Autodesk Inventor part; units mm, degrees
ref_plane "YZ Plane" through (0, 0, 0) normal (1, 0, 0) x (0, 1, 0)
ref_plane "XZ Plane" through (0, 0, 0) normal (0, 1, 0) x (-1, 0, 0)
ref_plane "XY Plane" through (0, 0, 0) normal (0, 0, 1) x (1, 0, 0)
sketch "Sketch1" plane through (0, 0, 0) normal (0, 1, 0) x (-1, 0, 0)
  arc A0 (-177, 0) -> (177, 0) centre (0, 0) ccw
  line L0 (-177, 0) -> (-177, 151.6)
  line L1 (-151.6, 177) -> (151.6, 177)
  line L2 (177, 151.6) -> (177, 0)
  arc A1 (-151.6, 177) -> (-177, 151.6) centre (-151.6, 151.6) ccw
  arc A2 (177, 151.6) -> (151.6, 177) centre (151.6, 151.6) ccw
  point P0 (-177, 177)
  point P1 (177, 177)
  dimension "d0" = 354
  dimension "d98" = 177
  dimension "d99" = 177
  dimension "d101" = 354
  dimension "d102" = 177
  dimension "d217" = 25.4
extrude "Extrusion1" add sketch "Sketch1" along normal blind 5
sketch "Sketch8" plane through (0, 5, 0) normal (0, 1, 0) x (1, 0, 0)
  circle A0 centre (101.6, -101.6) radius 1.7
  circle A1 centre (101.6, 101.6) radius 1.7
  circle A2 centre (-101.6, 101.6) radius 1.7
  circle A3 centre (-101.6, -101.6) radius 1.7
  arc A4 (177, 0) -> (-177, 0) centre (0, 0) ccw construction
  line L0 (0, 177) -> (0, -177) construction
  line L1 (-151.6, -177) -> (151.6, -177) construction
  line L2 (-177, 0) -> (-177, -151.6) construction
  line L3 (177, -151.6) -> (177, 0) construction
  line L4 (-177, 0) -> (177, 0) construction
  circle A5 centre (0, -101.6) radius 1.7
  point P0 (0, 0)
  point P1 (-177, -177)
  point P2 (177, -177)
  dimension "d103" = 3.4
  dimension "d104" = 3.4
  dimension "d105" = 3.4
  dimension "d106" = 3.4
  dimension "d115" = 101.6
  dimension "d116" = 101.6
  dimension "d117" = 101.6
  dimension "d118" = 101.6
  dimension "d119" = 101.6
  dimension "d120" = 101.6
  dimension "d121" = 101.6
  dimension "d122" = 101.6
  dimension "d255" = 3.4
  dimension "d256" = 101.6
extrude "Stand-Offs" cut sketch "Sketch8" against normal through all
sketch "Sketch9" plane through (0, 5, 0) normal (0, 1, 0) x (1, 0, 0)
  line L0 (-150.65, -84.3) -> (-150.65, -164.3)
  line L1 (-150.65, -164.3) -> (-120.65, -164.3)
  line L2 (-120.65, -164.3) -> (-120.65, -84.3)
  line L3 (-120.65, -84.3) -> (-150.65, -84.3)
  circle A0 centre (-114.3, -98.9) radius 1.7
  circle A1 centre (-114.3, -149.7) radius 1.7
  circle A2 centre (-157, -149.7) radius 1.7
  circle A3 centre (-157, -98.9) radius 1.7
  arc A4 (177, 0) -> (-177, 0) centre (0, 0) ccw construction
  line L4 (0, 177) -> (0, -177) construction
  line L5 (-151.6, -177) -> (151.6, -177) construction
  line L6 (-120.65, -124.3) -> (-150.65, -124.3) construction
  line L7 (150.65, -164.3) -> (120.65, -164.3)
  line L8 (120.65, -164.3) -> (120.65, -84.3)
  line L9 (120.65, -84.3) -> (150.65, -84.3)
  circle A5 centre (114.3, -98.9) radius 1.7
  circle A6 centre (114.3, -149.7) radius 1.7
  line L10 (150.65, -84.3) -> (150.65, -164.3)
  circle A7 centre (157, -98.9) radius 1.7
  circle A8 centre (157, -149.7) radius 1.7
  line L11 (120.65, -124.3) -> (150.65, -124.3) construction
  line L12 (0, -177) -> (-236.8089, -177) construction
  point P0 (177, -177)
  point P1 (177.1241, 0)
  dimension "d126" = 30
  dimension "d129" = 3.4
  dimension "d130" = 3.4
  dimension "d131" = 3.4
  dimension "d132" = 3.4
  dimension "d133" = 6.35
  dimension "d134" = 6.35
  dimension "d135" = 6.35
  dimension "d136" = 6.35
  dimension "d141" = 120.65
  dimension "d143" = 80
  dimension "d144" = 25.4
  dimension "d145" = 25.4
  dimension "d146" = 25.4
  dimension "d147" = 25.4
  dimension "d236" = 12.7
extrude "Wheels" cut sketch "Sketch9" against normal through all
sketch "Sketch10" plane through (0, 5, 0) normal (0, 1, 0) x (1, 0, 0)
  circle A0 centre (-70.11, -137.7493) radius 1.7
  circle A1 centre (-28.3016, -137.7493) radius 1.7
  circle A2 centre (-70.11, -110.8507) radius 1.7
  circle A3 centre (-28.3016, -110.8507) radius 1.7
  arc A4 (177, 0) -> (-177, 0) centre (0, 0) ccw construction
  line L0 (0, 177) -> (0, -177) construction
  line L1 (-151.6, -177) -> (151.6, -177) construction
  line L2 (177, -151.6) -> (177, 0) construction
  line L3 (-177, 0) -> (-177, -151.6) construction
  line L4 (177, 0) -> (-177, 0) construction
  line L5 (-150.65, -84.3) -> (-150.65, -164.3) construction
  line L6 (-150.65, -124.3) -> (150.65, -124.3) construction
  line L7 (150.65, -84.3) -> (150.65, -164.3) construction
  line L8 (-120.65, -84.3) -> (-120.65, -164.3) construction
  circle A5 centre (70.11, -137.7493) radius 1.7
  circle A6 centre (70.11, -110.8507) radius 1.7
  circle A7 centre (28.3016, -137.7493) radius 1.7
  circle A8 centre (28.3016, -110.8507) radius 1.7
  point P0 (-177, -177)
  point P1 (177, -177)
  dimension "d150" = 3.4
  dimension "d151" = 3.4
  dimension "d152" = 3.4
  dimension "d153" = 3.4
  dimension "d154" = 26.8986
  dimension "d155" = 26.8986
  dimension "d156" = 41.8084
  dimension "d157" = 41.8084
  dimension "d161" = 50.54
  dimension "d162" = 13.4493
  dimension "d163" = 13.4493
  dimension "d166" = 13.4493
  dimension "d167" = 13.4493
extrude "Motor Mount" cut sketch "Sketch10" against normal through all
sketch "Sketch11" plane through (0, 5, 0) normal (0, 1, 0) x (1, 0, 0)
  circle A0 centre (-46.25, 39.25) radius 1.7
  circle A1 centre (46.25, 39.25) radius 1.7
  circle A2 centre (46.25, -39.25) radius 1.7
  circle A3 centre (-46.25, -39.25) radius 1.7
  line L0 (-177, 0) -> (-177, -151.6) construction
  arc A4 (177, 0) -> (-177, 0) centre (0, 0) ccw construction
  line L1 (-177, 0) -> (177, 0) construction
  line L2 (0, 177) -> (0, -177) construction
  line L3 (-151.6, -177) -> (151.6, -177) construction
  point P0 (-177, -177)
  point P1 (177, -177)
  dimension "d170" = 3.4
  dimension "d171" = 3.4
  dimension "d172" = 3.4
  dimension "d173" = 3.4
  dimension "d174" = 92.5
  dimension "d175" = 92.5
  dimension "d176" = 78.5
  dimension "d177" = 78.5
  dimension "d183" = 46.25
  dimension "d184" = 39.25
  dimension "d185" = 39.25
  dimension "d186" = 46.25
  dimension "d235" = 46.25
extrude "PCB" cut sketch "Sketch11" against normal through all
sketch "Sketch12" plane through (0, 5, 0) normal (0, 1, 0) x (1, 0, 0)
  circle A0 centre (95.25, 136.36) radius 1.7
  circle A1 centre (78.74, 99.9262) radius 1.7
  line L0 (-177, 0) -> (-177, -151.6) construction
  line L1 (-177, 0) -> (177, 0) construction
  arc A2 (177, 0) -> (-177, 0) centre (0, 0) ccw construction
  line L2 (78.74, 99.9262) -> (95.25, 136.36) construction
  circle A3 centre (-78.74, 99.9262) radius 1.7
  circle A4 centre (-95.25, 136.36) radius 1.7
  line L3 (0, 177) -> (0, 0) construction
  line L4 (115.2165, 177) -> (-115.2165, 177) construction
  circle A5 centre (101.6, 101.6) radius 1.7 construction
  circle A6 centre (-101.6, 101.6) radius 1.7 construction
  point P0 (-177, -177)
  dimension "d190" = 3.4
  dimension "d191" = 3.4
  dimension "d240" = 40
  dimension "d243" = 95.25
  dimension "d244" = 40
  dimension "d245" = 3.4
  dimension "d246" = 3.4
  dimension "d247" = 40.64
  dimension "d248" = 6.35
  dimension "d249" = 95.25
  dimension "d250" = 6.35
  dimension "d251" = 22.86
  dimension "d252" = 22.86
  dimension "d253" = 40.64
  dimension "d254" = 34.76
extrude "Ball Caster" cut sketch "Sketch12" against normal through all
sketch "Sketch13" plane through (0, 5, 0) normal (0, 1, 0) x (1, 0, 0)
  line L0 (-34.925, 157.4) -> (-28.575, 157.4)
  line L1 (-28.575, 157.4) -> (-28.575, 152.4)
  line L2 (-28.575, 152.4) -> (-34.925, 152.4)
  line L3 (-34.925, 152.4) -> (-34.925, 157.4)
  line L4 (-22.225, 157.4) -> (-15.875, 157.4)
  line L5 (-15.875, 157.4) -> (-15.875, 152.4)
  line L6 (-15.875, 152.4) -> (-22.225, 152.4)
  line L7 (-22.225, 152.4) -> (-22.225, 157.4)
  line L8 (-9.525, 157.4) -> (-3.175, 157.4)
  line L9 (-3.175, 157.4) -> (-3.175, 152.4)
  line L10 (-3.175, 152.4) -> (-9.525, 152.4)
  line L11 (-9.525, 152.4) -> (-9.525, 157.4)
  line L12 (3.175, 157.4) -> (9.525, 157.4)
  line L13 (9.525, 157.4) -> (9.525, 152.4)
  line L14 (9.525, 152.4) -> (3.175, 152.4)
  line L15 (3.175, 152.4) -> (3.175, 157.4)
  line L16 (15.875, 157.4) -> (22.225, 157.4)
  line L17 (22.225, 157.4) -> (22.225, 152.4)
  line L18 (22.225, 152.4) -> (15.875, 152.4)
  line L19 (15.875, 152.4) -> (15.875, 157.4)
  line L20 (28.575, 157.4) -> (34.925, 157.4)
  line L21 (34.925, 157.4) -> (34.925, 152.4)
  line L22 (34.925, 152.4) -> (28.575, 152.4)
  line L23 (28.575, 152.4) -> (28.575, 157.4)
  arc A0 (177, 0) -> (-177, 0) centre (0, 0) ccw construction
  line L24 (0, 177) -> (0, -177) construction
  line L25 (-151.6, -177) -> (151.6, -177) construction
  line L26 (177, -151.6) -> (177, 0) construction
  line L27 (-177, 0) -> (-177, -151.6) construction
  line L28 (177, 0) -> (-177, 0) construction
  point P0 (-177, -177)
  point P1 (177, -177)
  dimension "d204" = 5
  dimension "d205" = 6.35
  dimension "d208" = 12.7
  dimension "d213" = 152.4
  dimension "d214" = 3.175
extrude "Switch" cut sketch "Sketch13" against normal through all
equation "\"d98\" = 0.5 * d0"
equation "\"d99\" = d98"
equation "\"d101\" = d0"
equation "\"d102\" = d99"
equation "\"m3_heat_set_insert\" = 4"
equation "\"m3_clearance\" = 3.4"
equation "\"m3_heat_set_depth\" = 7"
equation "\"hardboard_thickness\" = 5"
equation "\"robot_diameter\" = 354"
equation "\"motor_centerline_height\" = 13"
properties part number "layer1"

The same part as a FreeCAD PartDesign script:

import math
import FreeCAD as App
import Part
import Sketcher

V = App.Vector
Q = App.Units.Quantity

doc = App.newDocument("Part")
body = doc.addObject("PartDesign::Body", "Body")

# Sketch on XZ plane
sketch1 = body.newObject("Sketcher::SketchObject", "Sketch")
sketch1.AttachmentSupport = (doc.getObject("XZ_Plane"), [""])
sketch1.MapMode = "FlatFace"
sketch1.addGeometry([
    Part.LineSegment(V(177, 151.6, 0), V(177, 0, 0)),  # 0
    Part.ArcOfCircle(Part.Circle(V(0, 0, 0), V(0, 0, 1), 177), math.radians(180), math.radians(360)),  # 1
    Part.LineSegment(V(-177, 0, 0), V(-177, 151.6, 0)),  # 2
    Part.ArcOfCircle(Part.Circle(V(-151.6, 151.6, 0), V(0, 0, 1), 25.4), math.radians(90), math.radians(180)),  # 3
    Part.LineSegment(V(-151.6, 177, 0), V(151.6, 177, 0)),  # 4
    Part.ArcOfCircle(Part.Circle(V(151.6, 151.6, 0), V(0, 0, 1), 25.4), math.radians(0), math.radians(90)),  # 5
], False)
sketch1.addConstraint([
    Sketcher.Constraint("Tangent", 0, 2, 1, 2),
    Sketcher.Constraint("Tangent", 1, 1, 2, 1),
    Sketcher.Constraint("Tangent", 2, 2, 3, 2),
    Sketcher.Constraint("Tangent", 3, 1, 4, 1),
    Sketcher.Constraint("Tangent", 4, 2, 5, 2),
    Sketcher.Constraint("Tangent", 5, 1, 0, 1),
    Sketcher.Constraint("Vertical", 0),
    Sketcher.Constraint("Vertical", 2),
    Sketcher.Constraint("Horizontal", 4),
    Sketcher.Constraint("Coincident", 1, 3, -1, 1),
    Sketcher.Constraint("Equal", 3, 5),
    Sketcher.Constraint("Radius", 3, Q("1 in")),
    Sketcher.Constraint("Radius", 1, Q("6.9685 in")),
    Sketcher.Constraint("DistanceY", -1, 1, 3, 1, Q("6.9685 in")),
])
pad1 = body.newObject("PartDesign::Pad", "Pad")
pad1.Profile = sketch1
pad1.Length = 5
pad1.Reversed = True

# Sketch on XZ plane
sketch2 = body.newObject("Sketcher::SketchObject", "Sketch001")
sketch2.AttachmentSupport = (doc.getObject("XZ_Plane"), [""])
sketch2.MapMode = "FlatFace"
sketch2.AttachmentOffset = App.Placement(V(0, 0, -5), App.Rotation())
sketch2.addGeometry([
    Part.Circle(V(101.6, 101.6, 0), V(0, 0, 1), 1.7),  # 0
    Part.Circle(V(101.6, -101.6, 0), V(0, 0, 1), 1.7),  # 1
    Part.Circle(V(-101.6, -101.6, 0), V(0, 0, 1), 1.7),  # 2
    Part.Circle(V(-101.6, 101.6, 0), V(0, 0, 1), 1.7),  # 3
    Part.Circle(V(0, 101.6, 0), V(0, 0, 1), 1.7),  # 4
], False)
sketch2.addConstraint([
    Sketcher.Constraint("Equal", 0, 1),
    Sketcher.Constraint("Equal", 1, 2),
    Sketcher.Constraint("Equal", 2, 3),
    Sketcher.Constraint("Equal", 3, 4),
    Sketcher.Constraint("Symmetric", 0, 3, 2, 3, -1, 1),
    Sketcher.Constraint("Symmetric", 1, 3, 3, 3, -1, 1),
    Sketcher.Constraint("Symmetric", 1, 3, 2, 3, -2),
    Sketcher.Constraint("PointOnObject", 4, 3, -2),
    Sketcher.Constraint("Horizontal", 3, 3, 4, 3),
    Sketcher.Constraint("DistanceX", -1, 1, 0, 3, Q("4 in")),
    Sketcher.Constraint("DistanceY", -1, 1, 0, 3, Q("4 in")),
    Sketcher.Constraint("Diameter", 0, 3.4),
])
pocket1 = body.newObject("PartDesign::Pocket", "Pocket")
pocket1.Profile = sketch2
pocket1.Type = "ThroughAll"
pocket1.Reversed = True

# Sketch on XZ plane
sketch3 = body.newObject("Sketcher::SketchObject", "Sketch002")
sketch3.AttachmentSupport = (doc.getObject("XZ_Plane"), [""])
sketch3.MapMode = "FlatFace"
sketch3.AttachmentOffset = App.Placement(V(0, 0, -5), App.Rotation())
sketch3.addGeometry([
    Part.LineSegment(V(-120.65, 84.3, 0), V(-150.65, 84.3, 0)),  # 0
    Part.LineSegment(V(-150.65, 84.3, 0), V(-150.65, 164.3, 0)),  # 1
    Part.LineSegment(V(-150.65, 164.3, 0), V(-120.65, 164.3, 0)),  # 2
    Part.LineSegment(V(-120.65, 164.3, 0), V(-120.65, 84.3, 0)),  # 3
    Part.Circle(V(-114.3, 98.9, 0), V(0, 0, 1), 1.7),  # 4
    Part.Circle(V(-114.3, 149.7, 0), V(0, 0, 1), 1.7),  # 5
    Part.Circle(V(-157, 149.7, 0), V(0, 0, 1), 1.7),  # 6
    Part.Circle(V(-157, 98.9, 0), V(0, 0, 1), 1.7),  # 7
    Part.LineSegment(V(120.65, 164.3, 0), V(150.65, 164.3, 0)),  # 8
    Part.LineSegment(V(150.65, 164.3, 0), V(150.65, 84.3, 0)),  # 9
    Part.LineSegment(V(150.65, 84.3, 0), V(120.65, 84.3, 0)),  # 10
    Part.LineSegment(V(120.65, 84.3, 0), V(120.65, 164.3, 0)),  # 11
    Part.Circle(V(114.3, 98.9, 0), V(0, 0, 1), 1.7),  # 12
    Part.Circle(V(114.3, 149.7, 0), V(0, 0, 1), 1.7),  # 13
    Part.Circle(V(157, 98.9, 0), V(0, 0, 1), 1.7),  # 14
    Part.Circle(V(157, 149.7, 0), V(0, 0, 1), 1.7),  # 15
], False)
sketch3.addConstraint([
    Sketcher.Constraint("Coincident", 0, 2, 1, 1),
    Sketcher.Constraint("Coincident", 1, 2, 2, 1),
    Sketcher.Constraint("Coincident", 2, 2, 3, 1),
    Sketcher.Constraint("Coincident", 3, 2, 0, 1),
    Sketcher.Constraint("Coincident", 8, 2, 9, 1),
    Sketcher.Constraint("Coincident", 9, 2, 10, 1),
    Sketcher.Constraint("Coincident", 10, 2, 11, 1),
    Sketcher.Constraint("Coincident", 11, 2, 8, 1),
    Sketcher.Constraint("Horizontal", 0),
    Sketcher.Constraint("Vertical", 1),
    Sketcher.Constraint("Horizontal", 2),
    Sketcher.Constraint("Vertical", 3),
    Sketcher.Constraint("Horizontal", 8),
    Sketcher.Constraint("Vertical", 9),
    Sketcher.Constraint("Horizontal", 10),
    Sketcher.Constraint("Vertical", 11),
    Sketcher.Constraint("Equal", 4, 5),
    Sketcher.Constraint("Equal", 5, 6),
    Sketcher.Constraint("Equal", 6, 7),
    Sketcher.Constraint("Equal", 7, 12),
    Sketcher.Constraint("Equal", 12, 13),
    Sketcher.Constraint("Equal", 13, 14),
    Sketcher.Constraint("Equal", 14, 15),
    Sketcher.Constraint("Symmetric", 4, 3, 12, 3, -2),
    Sketcher.Constraint("Symmetric", 5, 3, 13, 3, -2),
    Sketcher.Constraint("Symmetric", 7, 3, 14, 3, -2),
    Sketcher.Constraint("Symmetric", 6, 3, 15, 3, -2),
    Sketcher.Constraint("Symmetric", 1, 2, 8, 2, -2),
    Sketcher.Constraint("Symmetric", 3, 2, 10, 2, -2),
    Sketcher.Constraint("Horizontal", 5, 3, 6, 3),
    Sketcher.Constraint("Horizontal", 4, 3, 7, 3),
    Sketcher.Constraint("Vertical", 4, 3, 5, 3),
    Sketcher.Constraint("Vertical", 6, 3, 7, 3),
    Sketcher.Constraint("Diameter", 4, 3.4),
    Sketcher.Constraint("DistanceX", 2, 2, -1, 1, Q("4.75 in")),
    Sketcher.Constraint("DistanceX", 7, 3, 0, 2, Q("0.25 in")),
    Sketcher.Constraint("DistanceX", 2, 2, 5, 3, Q("0.25 in")),
    Sketcher.Constraint("DistanceX", 0, 2, 0, 1, Q("1.1811 in")),
    Sketcher.Constraint("DistanceY", 1, 1, 1, 2, Q("3.1496 in")),
    Sketcher.Constraint("DistanceY", 4, 3, 5, 3, Q("2 in")),
    Sketcher.Constraint("DistanceY", -1, 1, 4, 3, Q("3.8937 in")),
    Sketcher.Constraint("DistanceY", -1, 1, 0, 2, Q("3.3189 in")),
])
pocket2 = body.newObject("PartDesign::Pocket", "Pocket001")
pocket2.Profile = sketch3
pocket2.Type = "ThroughAll"
pocket2.Reversed = True

# Sketch on XZ plane
sketch4 = body.newObject("Sketcher::SketchObject", "Sketch003")
sketch4.AttachmentSupport = (doc.getObject("XZ_Plane"), [""])
sketch4.MapMode = "FlatFace"
sketch4.AttachmentOffset = App.Placement(V(0, 0, -5), App.Rotation())
sketch4.addGeometry([
    Part.Circle(V(-70.11, 137.7493, 0), V(0, 0, 1), 1.7),  # 0
    Part.Circle(V(-28.3016, 137.7493, 0), V(0, 0, 1), 1.7),  # 1
    Part.Circle(V(-70.11, 110.8507, 0), V(0, 0, 1), 1.7),  # 2
    Part.Circle(V(-28.3016, 110.8507, 0), V(0, 0, 1), 1.7),  # 3
    Part.Circle(V(70.11, 137.7493, 0), V(0, 0, 1), 1.7),  # 4
    Part.Circle(V(70.11, 110.8507, 0), V(0, 0, 1), 1.7),  # 5
    Part.Circle(V(28.3016, 137.7493, 0), V(0, 0, 1), 1.7),  # 6
    Part.Circle(V(28.3016, 110.8507, 0), V(0, 0, 1), 1.7),  # 7
], False)
sketch4.addConstraint([
    Sketcher.Constraint("Equal", 0, 1),
    Sketcher.Constraint("Equal", 1, 2),
    Sketcher.Constraint("Equal", 2, 3),
    Sketcher.Constraint("Equal", 3, 4),
    Sketcher.Constraint("Equal", 4, 5),
    Sketcher.Constraint("Equal", 5, 6),
    Sketcher.Constraint("Equal", 6, 7),
    Sketcher.Constraint("Symmetric", 0, 3, 4, 3, -2),
    Sketcher.Constraint("Symmetric", 2, 3, 5, 3, -2),
    Sketcher.Constraint("Symmetric", 1, 3, 6, 3, -2),
    Sketcher.Constraint("Symmetric", 3, 3, 7, 3, -2),
    Sketcher.Constraint("Horizontal", 0, 3, 1, 3),
    Sketcher.Constraint("Horizontal", 2, 3, 3, 3),
    Sketcher.Constraint("Vertical", 0, 3, 2, 3),
    Sketcher.Constraint("Vertical", 1, 3, 3, 3),
    Sketcher.Constraint("Diameter", 0, 3.4),
    Sketcher.Constraint("DistanceX", 0, 3, 1, 3, Q("1.646 in")),
    Sketcher.Constraint("DistanceY", 2, 3, 0, 3, Q("1.059 in")),
    Sketcher.Constraint("DistanceY", -1, 1, 0, 3, Q("5.4232 in")),
    Sketcher.Constraint("DistanceX", 0, 3, -1, 1, 70.11),
])
pocket3 = body.newObject("PartDesign::Pocket", "Pocket002")
pocket3.Profile = sketch4
pocket3.Type = "ThroughAll"
pocket3.Reversed = True

# Sketch on XZ plane
sketch5 = body.newObject("Sketcher::SketchObject", "Sketch004")
sketch5.AttachmentSupport = (doc.getObject("XZ_Plane"), [""])
sketch5.MapMode = "FlatFace"
sketch5.AttachmentOffset = App.Placement(V(0, 0, -5), App.Rotation())
sketch5.addGeometry([
    Part.Circle(V(-46.25, -39.25, 0), V(0, 0, 1), 1.7),
    Part.Circle(V(46.25, -39.25, 0), V(0, 0, 1), 1.7),
    Part.Circle(V(46.25, 39.25, 0), V(0, 0, 1), 1.7),
    Part.Circle(V(-46.25, 39.25, 0), V(0, 0, 1), 1.7),
], False)
sketch5.addConstraint([
    Sketcher.Constraint("Equal", 0, 1),
    Sketcher.Constraint("Equal", 1, 2),
    Sketcher.Constraint("Equal", 2, 3),
    Sketcher.Constraint("Symmetric", 0, 3, 2, 3, -1, 1),
    Sketcher.Constraint("Symmetric", 1, 3, 3, 3, -1, 1),
    Sketcher.Constraint("Symmetric", 0, 3, 1, 3, -2),
    Sketcher.Constraint("Diameter", 0, 3.4),
    Sketcher.Constraint("DistanceX", 0, 3, -1, 1, 46.25),
    Sketcher.Constraint("DistanceY", 0, 3, -1, 1, 39.25),
])
pocket4 = body.newObject("PartDesign::Pocket", "Pocket003")
pocket4.Profile = sketch5
pocket4.Type = "ThroughAll"
pocket4.Reversed = True

# Sketch on XZ plane
sketch6 = body.newObject("Sketcher::SketchObject", "Sketch005")
sketch6.AttachmentSupport = (doc.getObject("XZ_Plane"), [""])
sketch6.MapMode = "FlatFace"
sketch6.AttachmentOffset = App.Placement(V(0, 0, -5), App.Rotation())
sketch6.addGeometry([
    Part.Circle(V(95.25, -136.36, 0), V(0, 0, 1), 1.7),
    Part.Circle(V(78.74, -99.9262, 0), V(0, 0, 1), 1.7),
    Part.Circle(V(-78.74, -99.9262, 0), V(0, 0, 1), 1.7),
    Part.Circle(V(-95.25, -136.36, 0), V(0, 0, 1), 1.7),
], False)
sketch6.addConstraint([
    Sketcher.Constraint("Equal", 0, 1),
    Sketcher.Constraint("Equal", 1, 2),
    Sketcher.Constraint("Equal", 2, 3),
    Sketcher.Constraint("Symmetric", 1, 3, 2, 3, -2),
    Sketcher.Constraint("Symmetric", 0, 3, 3, 3, -2),
    Sketcher.Constraint("Diameter", 0, 3.4),
    Sketcher.Constraint("DistanceX", -1, 1, 0, 3, Q("3.75 in")),
    Sketcher.Constraint("DistanceX", -1, 1, 1, 3, Q("3.1 in")),
    Sketcher.Constraint("DistanceY", 0, 3, -1, 1, Q("5.3685 in")),
    Sketcher.Constraint("DistanceY", 1, 3, -1, 1, Q("3.9341 in")),
])
pocket5 = body.newObject("PartDesign::Pocket", "Pocket004")
pocket5.Profile = sketch6
pocket5.Type = "ThroughAll"
pocket5.Reversed = True

# Sketch on XZ plane
sketch7 = body.newObject("Sketcher::SketchObject", "Sketch006")
sketch7.AttachmentSupport = (doc.getObject("XZ_Plane"), [""])
sketch7.MapMode = "FlatFace"
sketch7.AttachmentOffset = App.Placement(V(0, 0, -5), App.Rotation())
sketch7.addGeometry([
    Part.LineSegment(V(-28.575, -157.4, 0), V(-34.925, -157.4, 0)),  # 0
    Part.LineSegment(V(-34.925, -157.4, 0), V(-34.925, -152.4, 0)),  # 1
    Part.LineSegment(V(-34.925, -152.4, 0), V(-28.575, -152.4, 0)),  # 2
    Part.LineSegment(V(-28.575, -152.4, 0), V(-28.575, -157.4, 0)),  # 3
    Part.LineSegment(V(-15.875, -157.4, 0), V(-22.225, -157.4, 0)),  # 4
    Part.LineSegment(V(-22.225, -157.4, 0), V(-22.225, -152.4, 0)),  # 5
    Part.LineSegment(V(-22.225, -152.4, 0), V(-15.875, -152.4, 0)),  # 6
    Part.LineSegment(V(-15.875, -152.4, 0), V(-15.875, -157.4, 0)),  # 7
    Part.LineSegment(V(-3.175, -157.4, 0), V(-9.525, -157.4, 0)),  # 8
    Part.LineSegment(V(-9.525, -157.4, 0), V(-9.525, -152.4, 0)),  # 9
    Part.LineSegment(V(-9.525, -152.4, 0), V(-3.175, -152.4, 0)),  # 10
    Part.LineSegment(V(-3.175, -152.4, 0), V(-3.175, -157.4, 0)),  # 11
    Part.LineSegment(V(9.525, -157.4, 0), V(3.175, -157.4, 0)),  # 12
    Part.LineSegment(V(3.175, -157.4, 0), V(3.175, -152.4, 0)),  # 13
    Part.LineSegment(V(3.175, -152.4, 0), V(9.525, -152.4, 0)),  # 14
    Part.LineSegment(V(9.525, -152.4, 0), V(9.525, -157.4, 0)),  # 15
    Part.LineSegment(V(22.225, -157.4, 0), V(15.875, -157.4, 0)),  # 16
    Part.LineSegment(V(15.875, -157.4, 0), V(15.875, -152.4, 0)),  # 17
    Part.LineSegment(V(15.875, -152.4, 0), V(22.225, -152.4, 0)),  # 18
    Part.LineSegment(V(22.225, -152.4, 0), V(22.225, -157.4, 0)),  # 19
    Part.LineSegment(V(34.925, -157.4, 0), V(28.575, -157.4, 0)),  # 20
    Part.LineSegment(V(28.575, -157.4, 0), V(28.575, -152.4, 0)),  # 21
    Part.LineSegment(V(28.575, -152.4, 0), V(34.925, -152.4, 0)),  # 22
    Part.LineSegment(V(34.925, -152.4, 0), V(34.925, -157.4, 0)),  # 23
], False)
sketch7.addConstraint([
    Sketcher.Constraint("Coincident", 0, 2, 1, 1),
    Sketcher.Constraint("Coincident", 1, 2, 2, 1),
    Sketcher.Constraint("Coincident", 2, 2, 3, 1),
    Sketcher.Constraint("Coincident", 3, 2, 0, 1),
    Sketcher.Constraint("Coincident", 4, 2, 5, 1),
    Sketcher.Constraint("Coincident", 5, 2, 6, 1),
    Sketcher.Constraint("Coincident", 6, 2, 7, 1),
    Sketcher.Constraint("Coincident", 7, 2, 4, 1),
    Sketcher.Constraint("Coincident", 8, 2, 9, 1),
    Sketcher.Constraint("Coincident", 9, 2, 10, 1),
    Sketcher.Constraint("Coincident", 10, 2, 11, 1),
    Sketcher.Constraint("Coincident", 11, 2, 8, 1),
    Sketcher.Constraint("Coincident", 12, 2, 13, 1),
    Sketcher.Constraint("Coincident", 13, 2, 14, 1),
    Sketcher.Constraint("Coincident", 14, 2, 15, 1),
    Sketcher.Constraint("Coincident", 15, 2, 12, 1),
    Sketcher.Constraint("Coincident", 16, 2, 17, 1),
    Sketcher.Constraint("Coincident", 17, 2, 18, 1),
    Sketcher.Constraint("Coincident", 18, 2, 19, 1),
    Sketcher.Constraint("Coincident", 19, 2, 16, 1),
    Sketcher.Constraint("Coincident", 20, 2, 21, 1),
    Sketcher.Constraint("Coincident", 21, 2, 22, 1),
    Sketcher.Constraint("Coincident", 22, 2, 23, 1),
    Sketcher.Constraint("Coincident", 23, 2, 20, 1),
    Sketcher.Constraint("Horizontal", 0),
    Sketcher.Constraint("Vertical", 1),
    Sketcher.Constraint("Horizontal", 2),
    Sketcher.Constraint("Vertical", 3),
    Sketcher.Constraint("Horizontal", 4),
    Sketcher.Constraint("Vertical", 5),
    Sketcher.Constraint("Horizontal", 6),
    Sketcher.Constraint("Vertical", 7),
    Sketcher.Constraint("Horizontal", 8),
    Sketcher.Constraint("Vertical", 9),
    Sketcher.Constraint("Horizontal", 10),
    Sketcher.Constraint("Vertical", 11),
    Sketcher.Constraint("Horizontal", 12),
    Sketcher.Constraint("Vertical", 13),
    Sketcher.Constraint("Horizontal", 14),
    Sketcher.Constraint("Vertical", 15),
    Sketcher.Constraint("Horizontal", 16),
    Sketcher.Constraint("Vertical", 17),
    Sketcher.Constraint("Horizontal", 18),
    Sketcher.Constraint("Vertical", 19),
    Sketcher.Constraint("Horizontal", 20),
    Sketcher.Constraint("Vertical", 21),
    Sketcher.Constraint("Horizontal", 22),
    Sketcher.Constraint("Vertical", 23),
    Sketcher.Constraint("Symmetric", 11, 2, 12, 2, -2),
    Sketcher.Constraint("Symmetric", 9, 2, 14, 2, -2),
    Sketcher.Constraint("Symmetric", 7, 2, 16, 2, -2),
    Sketcher.Constraint("Symmetric", 5, 2, 18, 2, -2),
    Sketcher.Constraint("Symmetric", 3, 2, 20, 2, -2),
    Sketcher.Constraint("Symmetric", 1, 2, 22, 2, -2),
    Sketcher.Constraint("Horizontal", 3, 2, 4, 2),
    Sketcher.Constraint("Horizontal", 2, 2, 5, 2),
    Sketcher.Constraint("Horizontal", 7, 2, 8, 2),
    Sketcher.Constraint("Horizontal", 6, 2, 9, 2),
    Sketcher.Constraint("Equal", 2, 4),
    Sketcher.Constraint("Equal", 6, 8),
    Sketcher.Constraint("DistanceY", 1, 2, -1, 1, Q("6 in")),
    Sketcher.Constraint("DistanceX", 0, 2, 0, 1, Q("0.25 in")),
    Sketcher.Constraint("DistanceX", 0, 2, 4, 2, Q("0.5 in")),
    Sketcher.Constraint("DistanceX", 4, 2, 8, 2, Q("0.5 in")),
    Sketcher.Constraint("DistanceX", 8, 2, 12, 2, Q("0.5 in")),
    Sketcher.Constraint("DistanceY", 1, 1, 1, 2, 5.0),
])
pocket6 = body.newObject("PartDesign::Pocket", "Pocket005")
pocket6.Profile = sketch7
pocket6.Type = "ThroughAll"
pocket6.Reversed = True

doc.recompute()
